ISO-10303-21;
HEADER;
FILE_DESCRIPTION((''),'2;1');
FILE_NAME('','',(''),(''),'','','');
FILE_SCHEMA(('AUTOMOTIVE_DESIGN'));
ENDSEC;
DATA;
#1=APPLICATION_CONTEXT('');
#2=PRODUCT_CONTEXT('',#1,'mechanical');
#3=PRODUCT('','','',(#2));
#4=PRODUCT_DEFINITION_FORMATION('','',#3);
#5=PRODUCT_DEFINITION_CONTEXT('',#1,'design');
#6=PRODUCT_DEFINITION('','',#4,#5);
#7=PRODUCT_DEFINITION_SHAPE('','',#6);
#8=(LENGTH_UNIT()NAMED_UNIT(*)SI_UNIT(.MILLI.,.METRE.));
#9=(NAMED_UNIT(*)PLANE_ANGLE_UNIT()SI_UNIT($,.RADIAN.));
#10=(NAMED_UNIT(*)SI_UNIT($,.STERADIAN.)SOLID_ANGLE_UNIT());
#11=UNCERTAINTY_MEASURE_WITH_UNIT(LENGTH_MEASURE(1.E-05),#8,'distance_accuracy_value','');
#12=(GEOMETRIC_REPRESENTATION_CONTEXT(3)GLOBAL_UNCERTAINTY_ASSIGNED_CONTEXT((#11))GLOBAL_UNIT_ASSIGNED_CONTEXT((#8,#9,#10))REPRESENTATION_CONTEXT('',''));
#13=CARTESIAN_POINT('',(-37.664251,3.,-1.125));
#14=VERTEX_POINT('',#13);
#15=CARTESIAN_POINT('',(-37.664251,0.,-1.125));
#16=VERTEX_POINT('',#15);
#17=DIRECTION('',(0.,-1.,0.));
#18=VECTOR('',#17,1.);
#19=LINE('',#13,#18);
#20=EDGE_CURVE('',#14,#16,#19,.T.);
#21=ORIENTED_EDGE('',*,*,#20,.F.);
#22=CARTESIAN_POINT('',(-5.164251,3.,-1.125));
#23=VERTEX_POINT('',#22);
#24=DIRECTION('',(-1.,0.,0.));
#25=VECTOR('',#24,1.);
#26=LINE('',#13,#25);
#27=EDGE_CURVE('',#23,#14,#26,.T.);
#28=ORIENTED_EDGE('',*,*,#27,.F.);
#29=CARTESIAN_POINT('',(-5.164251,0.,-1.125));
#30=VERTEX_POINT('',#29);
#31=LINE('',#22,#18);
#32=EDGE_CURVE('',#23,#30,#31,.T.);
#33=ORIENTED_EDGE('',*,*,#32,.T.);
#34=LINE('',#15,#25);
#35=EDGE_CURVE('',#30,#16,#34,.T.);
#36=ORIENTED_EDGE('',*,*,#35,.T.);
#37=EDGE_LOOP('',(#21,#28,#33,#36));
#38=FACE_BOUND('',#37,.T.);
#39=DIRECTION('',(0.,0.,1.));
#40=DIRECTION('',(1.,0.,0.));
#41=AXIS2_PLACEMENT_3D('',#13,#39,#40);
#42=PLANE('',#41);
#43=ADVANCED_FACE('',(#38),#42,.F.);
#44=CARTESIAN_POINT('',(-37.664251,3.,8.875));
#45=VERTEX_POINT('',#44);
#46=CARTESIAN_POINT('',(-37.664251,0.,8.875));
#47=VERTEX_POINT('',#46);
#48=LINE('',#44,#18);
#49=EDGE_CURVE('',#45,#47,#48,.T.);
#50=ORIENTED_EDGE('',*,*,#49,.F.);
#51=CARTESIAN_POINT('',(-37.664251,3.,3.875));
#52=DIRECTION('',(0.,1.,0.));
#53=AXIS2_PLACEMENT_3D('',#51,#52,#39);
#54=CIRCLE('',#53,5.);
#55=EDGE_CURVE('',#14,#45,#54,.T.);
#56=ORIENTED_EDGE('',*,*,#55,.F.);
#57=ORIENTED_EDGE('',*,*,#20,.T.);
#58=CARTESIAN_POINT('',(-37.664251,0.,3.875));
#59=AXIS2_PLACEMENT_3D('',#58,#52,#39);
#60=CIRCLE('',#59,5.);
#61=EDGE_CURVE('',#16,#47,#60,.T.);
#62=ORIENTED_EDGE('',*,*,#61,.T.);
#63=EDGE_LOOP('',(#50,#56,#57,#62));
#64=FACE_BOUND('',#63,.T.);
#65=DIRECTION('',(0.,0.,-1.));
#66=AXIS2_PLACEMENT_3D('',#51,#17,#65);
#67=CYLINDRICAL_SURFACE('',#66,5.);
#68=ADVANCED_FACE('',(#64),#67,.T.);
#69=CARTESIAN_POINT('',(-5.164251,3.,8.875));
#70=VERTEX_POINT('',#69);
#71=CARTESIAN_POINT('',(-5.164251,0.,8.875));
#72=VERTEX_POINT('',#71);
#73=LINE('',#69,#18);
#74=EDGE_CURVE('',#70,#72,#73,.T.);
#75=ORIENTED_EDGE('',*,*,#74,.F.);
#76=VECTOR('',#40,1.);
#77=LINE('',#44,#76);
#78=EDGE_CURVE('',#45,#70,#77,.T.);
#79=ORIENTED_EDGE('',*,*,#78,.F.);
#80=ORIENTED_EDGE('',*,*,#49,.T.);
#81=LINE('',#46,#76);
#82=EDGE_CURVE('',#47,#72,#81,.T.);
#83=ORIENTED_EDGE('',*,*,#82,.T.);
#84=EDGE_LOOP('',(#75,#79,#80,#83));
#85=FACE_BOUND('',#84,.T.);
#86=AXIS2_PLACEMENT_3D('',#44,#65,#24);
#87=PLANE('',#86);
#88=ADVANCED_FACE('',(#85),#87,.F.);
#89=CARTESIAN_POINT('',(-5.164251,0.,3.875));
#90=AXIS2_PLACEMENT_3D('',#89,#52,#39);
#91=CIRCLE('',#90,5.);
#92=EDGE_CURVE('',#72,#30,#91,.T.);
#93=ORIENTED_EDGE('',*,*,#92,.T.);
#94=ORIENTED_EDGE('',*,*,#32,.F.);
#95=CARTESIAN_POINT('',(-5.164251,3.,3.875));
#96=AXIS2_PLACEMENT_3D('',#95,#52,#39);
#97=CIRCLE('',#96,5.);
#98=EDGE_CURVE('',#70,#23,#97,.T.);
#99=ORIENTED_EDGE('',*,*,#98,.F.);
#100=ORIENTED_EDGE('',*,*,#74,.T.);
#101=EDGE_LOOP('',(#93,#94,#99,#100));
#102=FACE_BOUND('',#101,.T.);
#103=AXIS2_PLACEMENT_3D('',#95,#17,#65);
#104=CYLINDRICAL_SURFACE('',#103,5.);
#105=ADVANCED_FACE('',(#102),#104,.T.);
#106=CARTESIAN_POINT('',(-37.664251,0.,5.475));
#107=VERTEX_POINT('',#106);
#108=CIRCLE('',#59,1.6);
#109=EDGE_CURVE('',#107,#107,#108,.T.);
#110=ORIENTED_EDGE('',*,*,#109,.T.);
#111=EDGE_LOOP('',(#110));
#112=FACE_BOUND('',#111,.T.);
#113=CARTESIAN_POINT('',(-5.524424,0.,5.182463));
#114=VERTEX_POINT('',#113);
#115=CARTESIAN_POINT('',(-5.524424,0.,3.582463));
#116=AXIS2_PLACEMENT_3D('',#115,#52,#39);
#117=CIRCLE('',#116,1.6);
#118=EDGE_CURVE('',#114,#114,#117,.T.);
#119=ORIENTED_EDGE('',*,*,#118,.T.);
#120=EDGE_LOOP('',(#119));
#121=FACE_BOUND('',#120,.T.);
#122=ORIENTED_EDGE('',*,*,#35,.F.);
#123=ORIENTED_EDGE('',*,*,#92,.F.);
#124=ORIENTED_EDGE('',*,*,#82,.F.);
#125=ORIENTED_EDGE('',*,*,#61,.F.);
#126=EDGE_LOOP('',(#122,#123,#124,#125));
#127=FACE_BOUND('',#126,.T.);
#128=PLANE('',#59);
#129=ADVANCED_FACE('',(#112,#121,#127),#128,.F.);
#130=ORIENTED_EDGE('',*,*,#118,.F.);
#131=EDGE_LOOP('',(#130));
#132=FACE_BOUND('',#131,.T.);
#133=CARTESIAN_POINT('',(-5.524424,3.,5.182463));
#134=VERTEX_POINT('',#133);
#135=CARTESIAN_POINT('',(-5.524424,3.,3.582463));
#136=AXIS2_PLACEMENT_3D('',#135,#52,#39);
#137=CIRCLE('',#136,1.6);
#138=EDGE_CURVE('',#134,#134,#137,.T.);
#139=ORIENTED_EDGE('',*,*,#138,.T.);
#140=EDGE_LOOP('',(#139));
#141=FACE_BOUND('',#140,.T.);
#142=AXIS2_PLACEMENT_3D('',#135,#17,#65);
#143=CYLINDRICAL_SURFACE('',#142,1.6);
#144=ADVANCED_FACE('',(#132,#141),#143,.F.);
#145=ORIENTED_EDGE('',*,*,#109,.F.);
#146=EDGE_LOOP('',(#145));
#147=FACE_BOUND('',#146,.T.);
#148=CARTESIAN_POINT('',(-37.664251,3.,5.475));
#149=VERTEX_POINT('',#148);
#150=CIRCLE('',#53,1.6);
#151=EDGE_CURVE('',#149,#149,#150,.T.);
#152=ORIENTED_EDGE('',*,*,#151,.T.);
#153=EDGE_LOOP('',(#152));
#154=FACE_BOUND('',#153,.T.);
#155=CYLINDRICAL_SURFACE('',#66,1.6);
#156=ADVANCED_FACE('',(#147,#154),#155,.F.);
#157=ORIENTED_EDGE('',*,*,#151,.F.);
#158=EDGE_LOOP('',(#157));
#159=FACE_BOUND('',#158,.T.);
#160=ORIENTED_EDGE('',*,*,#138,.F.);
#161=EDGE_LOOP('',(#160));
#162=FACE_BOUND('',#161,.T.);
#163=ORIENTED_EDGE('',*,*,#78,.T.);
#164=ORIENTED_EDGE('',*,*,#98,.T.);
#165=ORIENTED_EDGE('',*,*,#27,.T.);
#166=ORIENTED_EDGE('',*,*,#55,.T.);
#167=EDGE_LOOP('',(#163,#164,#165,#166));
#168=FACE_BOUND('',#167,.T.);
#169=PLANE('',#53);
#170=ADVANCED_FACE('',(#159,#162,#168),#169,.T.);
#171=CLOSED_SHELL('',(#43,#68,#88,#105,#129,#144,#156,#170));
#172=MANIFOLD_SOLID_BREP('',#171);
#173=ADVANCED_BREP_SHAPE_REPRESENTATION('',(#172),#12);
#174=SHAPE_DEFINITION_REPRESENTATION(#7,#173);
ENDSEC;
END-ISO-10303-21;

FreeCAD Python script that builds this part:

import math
import FreeCAD as App
import Part
import Sketcher
from FreeCAD import Vector

doc = App.newDocument("Part")
body = doc.addObject("PartDesign::Body", "Body")

# Sketch on XZ plane
sketch1 = doc.addObject("Sketcher::SketchObject", "Sketch")
body.addObject(sketch1)
sketch1.AttachmentSupport = (doc.XZ_Plane, [""])
sketch1.MapMode = "FlatFace"
sketch1.addGeometry([
    Part.LineSegment(Vector(-5.164251, -1.125, 0), Vector(-37.664251, -1.125, 0)),  # 0
    Part.ArcOfCircle(Part.Circle(Vector(-37.664251, 3.875, 0), Vector(0, 0, 1), 5), math.radians(90), math.radians(270)),  # 1
    Part.LineSegment(Vector(-37.664251, 8.875, 0), Vector(-5.164251, 8.875, 0)),  # 2
    Part.ArcOfCircle(Part.Circle(Vector(-5.164251, 3.875, 0), Vector(0, 0, 1), 5), math.radians(-90), math.radians(90)),  # 3
    Part.Circle(Vector(-37.664251, 3.875, 0), Vector(0, 0, 1), 1.6),  # 4
    Part.Circle(Vector(-5.524424, 3.582463, 0), Vector(0, 0, 1), 1.6),  # 5
], False)
sketch1.addConstraint([
    Sketcher.Constraint("Tangent", 0, 2, 1, 2),
    Sketcher.Constraint("Tangent", 1, 1, 2, 1),
    Sketcher.Constraint("Tangent", 2, 2, 3, 2),
    Sketcher.Constraint("Tangent", 3, 1, 0, 1),
    Sketcher.Constraint("Horizontal", 0),
    Sketcher.Constraint("Horizontal", 2),
    Sketcher.Constraint("Coincident", 4, 3, 1, 3),
    Sketcher.Constraint("Equal", 4, 5),
    Sketcher.Constraint("Radius", 1, 5.0),
    Sketcher.Constraint("Diameter", 4, 3.2),
    Sketcher.Constraint("DistanceX", 0, 2, 0, 1, 32.5),
    Sketcher.Constraint("DistanceY", -1, 1, 1, 3, 3.875),
    Sketcher.Constraint("DistanceX", 1, 3, -1, 1, 37.664251),
    Sketcher.Constraint("DistanceX", 5, 3, -1, 1, 5.524424),
    Sketcher.Constraint("DistanceY", -1, 1, 5, 3, 3.582463),
])
pad1 = doc.addObject("PartDesign::Pad", "Pad")
body.addObject(pad1)
pad1.Profile = sketch1
pad1.Length = 3
pad1.Reversed = True

doc.recompute()
